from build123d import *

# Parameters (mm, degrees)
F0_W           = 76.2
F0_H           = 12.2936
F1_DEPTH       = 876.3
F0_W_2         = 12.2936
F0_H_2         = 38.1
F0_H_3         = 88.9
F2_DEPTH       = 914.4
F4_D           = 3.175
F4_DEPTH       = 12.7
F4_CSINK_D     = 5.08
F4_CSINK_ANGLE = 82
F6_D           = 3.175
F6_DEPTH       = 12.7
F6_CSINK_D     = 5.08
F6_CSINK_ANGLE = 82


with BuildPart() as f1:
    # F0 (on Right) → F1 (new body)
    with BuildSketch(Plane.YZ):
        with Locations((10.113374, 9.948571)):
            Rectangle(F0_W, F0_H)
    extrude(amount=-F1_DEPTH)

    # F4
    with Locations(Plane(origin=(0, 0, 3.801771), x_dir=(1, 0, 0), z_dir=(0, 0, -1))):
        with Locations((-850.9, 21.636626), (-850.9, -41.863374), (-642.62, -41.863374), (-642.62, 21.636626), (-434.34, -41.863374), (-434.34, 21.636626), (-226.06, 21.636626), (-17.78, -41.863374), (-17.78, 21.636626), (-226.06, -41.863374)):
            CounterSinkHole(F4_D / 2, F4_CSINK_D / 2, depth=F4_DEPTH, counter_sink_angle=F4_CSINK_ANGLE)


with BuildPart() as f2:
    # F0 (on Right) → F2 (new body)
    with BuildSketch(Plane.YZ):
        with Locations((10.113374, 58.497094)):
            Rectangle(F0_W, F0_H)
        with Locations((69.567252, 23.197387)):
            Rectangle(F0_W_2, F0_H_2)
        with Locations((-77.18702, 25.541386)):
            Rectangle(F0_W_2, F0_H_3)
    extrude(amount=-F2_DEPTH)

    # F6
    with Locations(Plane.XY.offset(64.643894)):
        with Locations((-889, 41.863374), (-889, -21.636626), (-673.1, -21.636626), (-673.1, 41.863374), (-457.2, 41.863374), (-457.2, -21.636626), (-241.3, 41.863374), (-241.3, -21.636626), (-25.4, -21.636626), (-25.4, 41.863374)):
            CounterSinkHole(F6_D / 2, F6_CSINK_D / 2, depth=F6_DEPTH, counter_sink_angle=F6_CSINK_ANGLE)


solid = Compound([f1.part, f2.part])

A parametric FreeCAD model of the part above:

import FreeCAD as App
import Part
import Sketcher
Q = App.Units.Quantity


def add_polygon(sketch, points):
    """Adds a closed chain of lines whose ends are joined by coincident constraints."""
    first, n = sketch.GeometryCount, len(points)
    for a, b in zip(points, points[1:] + points[:1]):
        sketch.addGeometry(Part.LineSegment(App.Vector(*a, 0), App.Vector(*b, 0)), False)
    for i in range(n):
        sketch.addConstraint(Sketcher.Constraint("Coincident", first + i, 2, first + (i + 1) % n, 1))

doc = App.newDocument("Part")
body = doc.addObject("PartDesign::Body", "Body")

sketch1 = body.newObject("Sketcher::SketchObject", "Sketch")
sketch1.AttachmentSupport = (doc.getObject("YZ_Plane"), [""])
sketch1.MapMode = "FlatFace"
add_polygon(sketch1, [(-28, 16), (-28, 4), (48, 4), (48, 16)])
sketch1.addConstraint(Sketcher.Constraint("Vertical", 0))
sketch1.addConstraint(Sketcher.Constraint("Horizontal", 1))
sketch1.addConstraint(Sketcher.Constraint("Vertical", 2))
sketch1.addConstraint(Sketcher.Constraint("Horizontal", 3))
sketch1.addConstraint(Sketcher.Constraint("DistanceX", 1, 1, 1, 2, Q("3 in")))
sketch1.addConstraint(Sketcher.Constraint("DistanceY", 0, 2, 0, 1, Q("0.484 in")))
sketch1.addConstraint(Sketcher.Constraint("DistanceY", -1, 1, 0, 2, Q("3.801771 mm")))
sketch1.addConstraint(Sketcher.Constraint("DistanceX", 0, 2, -1, 1, Q("27.986626 mm")))
pad1 = body.newObject("PartDesign::Pad", "Pad")
pad1.Profile = sketch1
pad1.Length = Q("34.5 in")
pad1.Reversed = True

sketch2 = body.newObject("Sketcher::SketchObject", "Sketch001")
sketch2.AttachmentSupport = (doc.getObject("XY_Plane"), [""])
sketch2.MapMode = "FlatFace"
sketch2.AttachmentOffset = App.Placement(App.Vector(0, 0, 3.801771), App.Rotation())
sketch2.addGeometry(Part.Circle(App.Vector(-850.9, -21.6, 0), App.Vector(0, 0, 1), 1.6), False)
sketch2.addGeometry(Part.Circle(App.Vector(-850.9, 41.9, 0), App.Vector(0, 0, 1), 1.6), False)
sketch2.addGeometry(Part.Circle(App.Vector(-642.6, 41.9, 0), App.Vector(0, 0, 1), 1.6), False)
sketch2.addGeometry(Part.Circle(App.Vector(-642.6, -21.6, 0), App.Vector(0, 0, 1), 1.6), False)
sketch2.addGeometry(Part.Circle(App.Vector(-434.3, 41.9, 0), App.Vector(0, 0, 1), 1.6), False)
sketch2.addGeometry(Part.Circle(App.Vector(-434.3, -21.6, 0), App.Vector(0, 0, 1), 1.6), False)
sketch2.addGeometry(Part.Circle(App.Vector(-226.1, -21.6, 0), App.Vector(0, 0, 1), 1.6), False)
sketch2.addGeometry(Part.Circle(App.Vector(-17.8, 41.9, 0), App.Vector(0, 0, 1), 1.6), False)
sketch2.addGeometry(Part.Circle(App.Vector(-17.8, -21.6, 0), App.Vector(0, 0, 1), 1.6), False)
sketch2.addGeometry(Part.Circle(App.Vector(-226.1, 41.9, 0), App.Vector(0, 0, 1), 1.6), False)
sketch2.addConstraint(Sketcher.Constraint("Equal", 0, 1))
sketch2.addConstraint(Sketcher.Constraint("Equal", 1, 2))
sketch2.addConstraint(Sketcher.Constraint("Equal", 2, 3))
sketch2.addConstraint(Sketcher.Constraint("Equal", 3, 4))
sketch2.addConstraint(Sketcher.Constraint("Equal", 4, 5))
sketch2.addConstraint(Sketcher.Constraint("Equal", 5, 6))
sketch2.addConstraint(Sketcher.Constraint("Equal", 6, 7))
sketch2.addConstraint(Sketcher.Constraint("Equal", 7, 8))
sketch2.addConstraint(Sketcher.Constraint("Equal", 8, 9))
sketch2.addConstraint(Sketcher.Constraint("Horizontal", 1, 3, 2, 3))
sketch2.addConstraint(Sketcher.Constraint("Horizontal", 0, 3, 3, 3))
sketch2.addConstraint(Sketcher.Constraint("Horizontal", 2, 3, 4, 3))
sketch2.addConstraint(Sketcher.Constraint("Horizontal", 3, 3, 5, 3))
sketch2.addConstraint(Sketcher.Constraint("Horizontal", 5, 3, 6, 3))
sketch2.addConstraint(Sketcher.Constraint("Horizontal", 4, 3, 7, 3))
sketch2.addConstraint(Sketcher.Constraint("Horizontal", 6, 3, 8, 3))
sketch2.addConstraint(Sketcher.Constraint("Horizontal", 7, 3, 9, 3))
sketch2.addConstraint(Sketcher.Constraint("Vertical", 0, 3, 1, 3))
sketch2.addConstraint(Sketcher.Constraint("Vertical", 2, 3, 3, 3))
sketch2.addConstraint(Sketcher.Constraint("Vertical", 4, 3, 5, 3))
sketch2.addConstraint(Sketcher.Constraint("Vertical", 7, 3, 8, 3))
sketch2.addConstraint(Sketcher.Constraint("Vertical", 6, 3, 9, 3))
sketch2.addConstraint(Sketcher.Constraint("Diameter", 0, Q("0.125 in")))
sketch2.addConstraint(Sketcher.Constraint("DistanceX", 0, 3, -1, 1, Q("33.5 in")))
sketch2.addConstraint(Sketcher.Constraint("DistanceX", 2, 3, -1, 1, Q("25.3 in")))
sketch2.addConstraint(Sketcher.Constraint("DistanceX", 4, 3, -1, 1, Q("17.1 in")))
sketch2.addConstraint(Sketcher.Constraint("DistanceX", 6, 3, -1, 1, Q("8.9 in")))
sketch2.addConstraint(Sketcher.Constraint("DistanceX", 7, 3, -1, 1, Q("0.7 in")))
sketch2.addConstraint(Sketcher.Constraint("DistanceY", 0, 3, 1, 3, Q("2.5 in")))
sketch2.addConstraint(Sketcher.Constraint("DistanceY", 0, 3, -1, 1, Q("21.636626 mm")))
doc.recompute()
hole = body.newObject("PartDesign::Hole", "Hole")
hole.Profile = sketch2
hole.ThreadType = "None"
hole.Diameter = Q("0.125 in")
hole.DepthType = "Dimension"
hole.Depth = Q("0.5 in")
hole.DrillPoint = "Flat"
hole.HoleCutType = "Countersink"
hole.HoleCutDiameter = Q("0.2 in")
hole.HoleCutCountersinkAngle = 82
hole.Reversed = True
body2 = doc.addObject("PartDesign::Body", "Body001")
body2.AllowCompound = True

sketch3 = body2.newObject("Sketcher::SketchObject", "Sketch002")
sketch3.AttachmentSupport = (doc.getObject("YZ_Plane001"), [""])
sketch3.MapMode = "FlatFace"
add_polygon(sketch3, [(-28, 65), (-28, 52), (48, 52), (48, 65)])
add_polygon(sketch3, [(63, 42), (63, 4), (76, 4), (76, 42)])
add_polygon(sketch3, [(-83, 70), (-83, -19), (-71, -19), (-71, 70)])
sketch3.addConstraint(Sketcher.Constraint("Vertical", 0))
sketch3.addConstraint(Sketcher.Constraint("Horizontal", 1))
sketch3.addConstraint(Sketcher.Constraint("Vertical", 2))
sketch3.addConstraint(Sketcher.Constraint("Horizontal", 3))
sketch3.addConstraint(Sketcher.Constraint("Vertical", 4))
sketch3.addConstraint(Sketcher.Constraint("Horizontal", 5))
sketch3.addConstraint(Sketcher.Constraint("Vertical", 6))
sketch3.addConstraint(Sketcher.Constraint("Horizontal", 7))
sketch3.addConstraint(Sketcher.Constraint("Vertical", 8))
sketch3.addConstraint(Sketcher.Constraint("Horizontal", 9))
sketch3.addConstraint(Sketcher.Constraint("Vertical", 10))
sketch3.addConstraint(Sketcher.Constraint("Horizontal", 11))
sketch3.addConstraint(Sketcher.Constraint("Equal", 7, 9))
sketch3.addConstraint(Sketcher.Constraint("Equal", 11, 0))
sketch3.addConstraint(Sketcher.Constraint("DistanceX", 1, 1, 1, 2, Q("3 in")))
sketch3.addConstraint(Sketcher.Constraint("DistanceY", 4, 2, 4, 1, Q("1.5 in")))
sketch3.addConstraint(Sketcher.Constraint("DistanceY", 8, 2, 8, 1, Q("3.5 in")))
sketch3.addConstraint(Sketcher.Constraint("DistanceX", 5, 1, 5, 2, Q("0.484 in")))
sketch3.addConstraint(Sketcher.Constraint("DistanceY", 8, 2, 4, 2, Q("23.056001 mm")))
sketch3.addConstraint(Sketcher.Constraint("DistanceX", -1, 1, 4, 2, Q("63.420452 mm")))
sketch3.addConstraint(Sketcher.Constraint("DistanceX", 8, 2, -1, 1, Q("83.33382 mm")))
sketch3.addConstraint(Sketcher.Constraint("DistanceX", 0, 2, 4, 2, Q("91.407078 mm")))
sketch3.addConstraint(Sketcher.Constraint("DistanceY", 8, 2, 3, 2, Q("83.552508 mm")))
sketch3.addConstraint(Sketcher.Constraint("DistanceY", -1, 1, 0, 2, Q("52.350294 mm")))
pad2 = body2.newObject("PartDesign::Pad", "Pad001")
pad2.Profile = sketch3
pad2.Length = Q("36 in")
pad2.Reversed = True

sketch4 = body2.newObject("Sketcher::SketchObject", "Sketch003")
sketch4.AttachmentSupport = (doc.getObject("XY_Plane001"), [""])
sketch4.MapMode = "FlatFace"
sketch4.AttachmentOffset = App.Placement(App.Vector(0, 0, 64.643894), App.Rotation())
sketch4.addGeometry(Part.Circle(App.Vector(-889, 41.9, 0), App.Vector(0, 0, 1), 1.6), False)
sketch4.addGeometry(Part.Circle(App.Vector(-889, -21.6, 0), App.Vector(0, 0, 1), 1.6), False)
sketch4.addGeometry(Part.Circle(App.Vector(-673.1, -21.6, 0), App.Vector(0, 0, 1), 1.6), False)
sketch4.addGeometry(Part.Circle(App.Vector(-673.1, 41.9, 0), App.Vector(0, 0, 1), 1.6), False)
sketch4.addGeometry(Part.Circle(App.Vector(-457.2, 41.9, 0), App.Vector(0, 0, 1), 1.6), False)
sketch4.addGeometry(Part.Circle(App.Vector(-457.2, -21.6, 0), App.Vector(0, 0, 1), 1.6), False)
sketch4.addGeometry(Part.Circle(App.Vector(-241.3, 41.9, 0), App.Vector(0, 0, 1), 1.6), False)
sketch4.addGeometry(Part.Circle(App.Vector(-241.3, -21.6, 0), App.Vector(0, 0, 1), 1.6), False)
sketch4.addGeometry(Part.Circle(App.Vector(-25.4, -21.6, 0), App.Vector(0, 0, 1), 1.6), False)
sketch4.addGeometry(Part.Circle(App.Vector(-25.4, 41.9, 0), App.Vector(0, 0, 1), 1.6), False)
sketch4.addConstraint(Sketcher.Constraint("Equal", 0, 1))
sketch4.addConstraint(Sketcher.Constraint("Equal", 1, 2))
sketch4.addConstraint(Sketcher.Constraint("Equal", 2, 3))
sketch4.addConstraint(Sketcher.Constraint("Equal", 3, 4))
sketch4.addConstraint(Sketcher.Constraint("Equal", 4, 5))
sketch4.addConstraint(Sketcher.Constraint("Equal", 5, 6))
sketch4.addConstraint(Sketcher.Constraint("Equal", 6, 7))
sketch4.addConstraint(Sketcher.Constraint("Equal", 7, 8))
sketch4.addConstraint(Sketcher.Constraint("Equal", 8, 9))
sketch4.addConstraint(Sketcher.Constraint("Horizontal", 1, 3, 2, 3))
sketch4.addConstraint(Sketcher.Constraint("Horizontal", 0, 3, 3, 3))
sketch4.addConstraint(Sketcher.Constraint("Horizontal", 3, 3, 4, 3))
sketch4.addConstraint(Sketcher.Constraint("Horizontal", 2, 3, 5, 3))
sketch4.addConstraint(Sketcher.Constraint("Horizontal", 4, 3, 6, 3))
sketch4.addConstraint(Sketcher.Constraint("Horizontal", 5, 3, 7, 3))
sketch4.addConstraint(Sketcher.Constraint("Horizontal", 7, 3, 8, 3))
sketch4.addConstraint(Sketcher.Constraint("Horizontal", 6, 3, 9, 3))
sketch4.addConstraint(Sketcher.Constraint("Vertical", 0, 3, 1, 3))
sketch4.addConstraint(Sketcher.Constraint("Vertical", 2, 3, 3, 3))
sketch4.addConstraint(Sketcher.Constraint("Vertical", 4, 3, 5, 3))
sketch4.addConstraint(Sketcher.Constraint("Vertical", 6, 3, 7, 3))
sketch4.addConstraint(Sketcher.Constraint("Vertical", 8, 3, 9, 3))
sketch4.addConstraint(Sketcher.Constraint("Diameter", 0, Q("0.125 in")))
sketch4.addConstraint(Sketcher.Constraint("DistanceX", 0, 3, -1, 1, Q("35 in")))
sketch4.addConstraint(Sketcher.Constraint("DistanceX", 4, 3, -1, 1, Q("18 in")))
sketch4.addConstraint(Sketcher.Constraint("DistanceX", 8, 3, -1, 1, Q("1 in")))
sketch4.addConstraint(Sketcher.Constraint("DistanceX", 3, 3, 6, 3, Q("17 in")))
sketch4.addConstraint(Sketcher.Constraint("DistanceX", 2, 3, -1, 1, Q("26.5 in")))
sketch4.addConstraint(Sketcher.Constraint("DistanceY", 1, 3, 0, 3, Q("2.5 in")))
sketch4.addConstraint(Sketcher.Constraint("DistanceY", -1, 1, 0, 3, Q("41.863374 mm")))
doc.recompute()
hole2 = body2.newObject("PartDesign::Hole", "Hole001")
hole2.Profile = sketch4
hole2.ThreadType = "None"
hole2.Diameter = Q("0.125 in")
hole2.DepthType = "Dimension"
hole2.Depth = Q("0.5 in")
hole2.DrillPoint = "Flat"
hole2.HoleCutType = "Countersink"
hole2.HoleCutDiameter = Q("0.2 in")
hole2.HoleCutCountersinkAngle = 82

doc.recompute()
